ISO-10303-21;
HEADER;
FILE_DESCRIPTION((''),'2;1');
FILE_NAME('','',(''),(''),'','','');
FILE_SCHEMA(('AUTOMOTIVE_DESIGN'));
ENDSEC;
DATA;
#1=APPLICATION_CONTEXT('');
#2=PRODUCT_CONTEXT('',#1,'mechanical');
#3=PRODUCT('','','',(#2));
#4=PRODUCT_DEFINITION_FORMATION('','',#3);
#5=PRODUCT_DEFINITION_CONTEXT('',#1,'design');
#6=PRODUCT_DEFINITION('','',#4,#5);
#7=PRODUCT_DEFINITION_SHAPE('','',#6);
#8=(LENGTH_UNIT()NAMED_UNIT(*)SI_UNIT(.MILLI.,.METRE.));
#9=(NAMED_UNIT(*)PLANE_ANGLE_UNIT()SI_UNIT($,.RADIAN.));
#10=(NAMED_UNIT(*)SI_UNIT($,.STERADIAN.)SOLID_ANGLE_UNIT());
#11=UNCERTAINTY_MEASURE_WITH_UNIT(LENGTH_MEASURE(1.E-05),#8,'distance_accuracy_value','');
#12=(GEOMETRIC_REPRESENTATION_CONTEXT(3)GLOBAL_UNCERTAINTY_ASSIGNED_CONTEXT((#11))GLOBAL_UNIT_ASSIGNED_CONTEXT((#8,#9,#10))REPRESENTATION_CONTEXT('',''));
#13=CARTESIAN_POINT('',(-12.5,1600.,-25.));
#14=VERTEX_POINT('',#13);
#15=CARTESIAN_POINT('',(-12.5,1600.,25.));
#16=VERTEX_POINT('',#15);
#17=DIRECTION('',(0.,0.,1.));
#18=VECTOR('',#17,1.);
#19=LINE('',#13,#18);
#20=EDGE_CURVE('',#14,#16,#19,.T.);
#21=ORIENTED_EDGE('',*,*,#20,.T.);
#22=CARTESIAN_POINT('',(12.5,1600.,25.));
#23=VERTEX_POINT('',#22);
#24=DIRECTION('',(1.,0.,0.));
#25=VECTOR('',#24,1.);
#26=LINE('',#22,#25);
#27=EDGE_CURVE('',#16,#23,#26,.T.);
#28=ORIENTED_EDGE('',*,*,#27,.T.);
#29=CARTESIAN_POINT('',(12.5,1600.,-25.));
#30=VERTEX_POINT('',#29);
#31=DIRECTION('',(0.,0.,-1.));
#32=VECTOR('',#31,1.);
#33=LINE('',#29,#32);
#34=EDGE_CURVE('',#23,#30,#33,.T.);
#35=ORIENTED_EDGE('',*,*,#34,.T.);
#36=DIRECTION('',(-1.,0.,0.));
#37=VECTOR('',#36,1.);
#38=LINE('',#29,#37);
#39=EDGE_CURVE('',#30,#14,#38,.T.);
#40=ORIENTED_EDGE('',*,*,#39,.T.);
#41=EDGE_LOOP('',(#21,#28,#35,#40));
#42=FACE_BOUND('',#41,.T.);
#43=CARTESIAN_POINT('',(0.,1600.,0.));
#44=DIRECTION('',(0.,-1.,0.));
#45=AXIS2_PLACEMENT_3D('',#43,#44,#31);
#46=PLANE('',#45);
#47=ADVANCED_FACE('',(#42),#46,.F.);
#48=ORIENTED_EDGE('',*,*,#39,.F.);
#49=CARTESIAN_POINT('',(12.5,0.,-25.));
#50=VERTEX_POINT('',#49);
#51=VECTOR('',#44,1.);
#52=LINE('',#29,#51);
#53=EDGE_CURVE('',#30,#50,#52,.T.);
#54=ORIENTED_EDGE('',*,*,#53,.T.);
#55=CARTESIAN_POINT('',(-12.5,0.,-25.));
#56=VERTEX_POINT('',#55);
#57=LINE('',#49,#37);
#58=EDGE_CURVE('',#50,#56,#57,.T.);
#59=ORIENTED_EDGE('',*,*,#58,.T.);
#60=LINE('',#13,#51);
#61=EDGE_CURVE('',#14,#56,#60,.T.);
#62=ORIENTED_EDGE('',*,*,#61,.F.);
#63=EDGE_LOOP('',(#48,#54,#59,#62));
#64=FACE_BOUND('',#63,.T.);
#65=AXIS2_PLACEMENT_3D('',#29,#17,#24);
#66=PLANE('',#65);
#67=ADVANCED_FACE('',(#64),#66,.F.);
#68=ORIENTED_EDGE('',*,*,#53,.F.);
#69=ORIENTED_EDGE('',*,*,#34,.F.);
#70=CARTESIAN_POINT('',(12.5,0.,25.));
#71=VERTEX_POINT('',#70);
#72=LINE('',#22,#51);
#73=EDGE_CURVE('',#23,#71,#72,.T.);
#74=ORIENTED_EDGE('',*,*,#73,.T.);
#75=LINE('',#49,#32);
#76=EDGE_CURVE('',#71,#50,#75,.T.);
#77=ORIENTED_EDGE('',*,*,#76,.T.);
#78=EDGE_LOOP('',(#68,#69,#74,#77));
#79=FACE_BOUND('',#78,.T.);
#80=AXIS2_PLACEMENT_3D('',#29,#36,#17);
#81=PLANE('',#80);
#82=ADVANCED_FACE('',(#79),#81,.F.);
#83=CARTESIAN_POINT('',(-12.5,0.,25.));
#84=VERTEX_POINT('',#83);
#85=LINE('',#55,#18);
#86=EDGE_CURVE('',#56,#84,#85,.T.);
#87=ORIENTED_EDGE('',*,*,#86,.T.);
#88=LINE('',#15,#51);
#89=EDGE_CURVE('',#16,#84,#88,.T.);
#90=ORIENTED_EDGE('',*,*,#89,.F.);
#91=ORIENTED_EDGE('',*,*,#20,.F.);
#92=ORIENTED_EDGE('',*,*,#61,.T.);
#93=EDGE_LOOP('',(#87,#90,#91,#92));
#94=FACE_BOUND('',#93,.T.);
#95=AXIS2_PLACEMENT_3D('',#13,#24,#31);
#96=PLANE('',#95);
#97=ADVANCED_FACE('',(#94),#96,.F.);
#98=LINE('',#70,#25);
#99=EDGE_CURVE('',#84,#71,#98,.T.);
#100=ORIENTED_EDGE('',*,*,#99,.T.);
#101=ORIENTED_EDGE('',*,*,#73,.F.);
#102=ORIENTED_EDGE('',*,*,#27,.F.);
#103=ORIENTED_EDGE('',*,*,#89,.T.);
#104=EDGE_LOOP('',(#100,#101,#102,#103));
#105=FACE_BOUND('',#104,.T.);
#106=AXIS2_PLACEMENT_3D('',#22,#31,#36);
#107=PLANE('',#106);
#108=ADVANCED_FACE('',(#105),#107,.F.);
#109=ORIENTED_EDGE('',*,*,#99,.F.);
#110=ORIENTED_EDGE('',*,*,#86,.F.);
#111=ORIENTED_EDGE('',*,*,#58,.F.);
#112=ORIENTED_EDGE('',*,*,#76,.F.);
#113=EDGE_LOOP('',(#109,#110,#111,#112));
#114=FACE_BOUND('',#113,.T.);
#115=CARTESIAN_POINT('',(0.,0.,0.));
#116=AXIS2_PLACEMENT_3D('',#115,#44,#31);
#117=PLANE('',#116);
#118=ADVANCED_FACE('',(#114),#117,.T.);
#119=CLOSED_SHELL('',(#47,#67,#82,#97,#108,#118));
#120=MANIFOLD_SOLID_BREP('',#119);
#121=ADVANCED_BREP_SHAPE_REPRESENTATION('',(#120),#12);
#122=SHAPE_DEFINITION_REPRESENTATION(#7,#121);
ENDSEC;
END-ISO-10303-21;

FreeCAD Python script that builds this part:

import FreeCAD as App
import Part
import Sketcher

V = App.Vector
Q = App.Units.Quantity


def add_polygon(sketch, points):
    """Adds a closed chain of lines whose ends are joined by coincident constraints."""
    first, n = sketch.GeometryCount, len(points)
    for a, b in zip(points, points[1:] + points[:1]):
        sketch.addGeometry(Part.LineSegment(App.Vector(*a, 0), App.Vector(*b, 0)), False)
    for i in range(n):
        sketch.addConstraint(Sketcher.Constraint("Coincident", first + i, 2, first + (i + 1) % n, 1))

doc = App.newDocument("Part")
body = doc.addObject("PartDesign::Body", "Body")

# Sketch on XZ plane
sketch1 = doc.addObject("Sketcher::SketchObject", "Sketch")
body.addObject(sketch1)
sketch1.AttachmentSupport = (doc.XZ_Plane, [""])
sketch1.MapMode = "FlatFace"
add_polygon(sketch1, [(-12, -25), (-12, 25), (12, 25), (12, -25)])  # lines 0-3
sketch1.addConstraint(Sketcher.Constraint("Vertical", 0))
sketch1.addConstraint(Sketcher.Constraint("Horizontal", 1))
sketch1.addConstraint(Sketcher.Constraint("Vertical", 2))
sketch1.addConstraint(Sketcher.Constraint("Horizontal", 3))
sketch1.addConstraint(Sketcher.Constraint("Symmetric", 0, 2, 2, 2, -1, 1))
sketch1.addConstraint(Sketcher.Constraint("DistanceX", 1, 1, 1, 2, Q("25 mm")))
sketch1.addConstraint(Sketcher.Constraint("DistanceY", 0, 1, 0, 2, Q("50 mm")))
pad1 = doc.addObject("PartDesign::Pad", "Pad")
body.addObject(pad1)
pad1.Profile = sketch1
pad1.Length = 1600
pad1.Reversed = True

doc.recompute()
